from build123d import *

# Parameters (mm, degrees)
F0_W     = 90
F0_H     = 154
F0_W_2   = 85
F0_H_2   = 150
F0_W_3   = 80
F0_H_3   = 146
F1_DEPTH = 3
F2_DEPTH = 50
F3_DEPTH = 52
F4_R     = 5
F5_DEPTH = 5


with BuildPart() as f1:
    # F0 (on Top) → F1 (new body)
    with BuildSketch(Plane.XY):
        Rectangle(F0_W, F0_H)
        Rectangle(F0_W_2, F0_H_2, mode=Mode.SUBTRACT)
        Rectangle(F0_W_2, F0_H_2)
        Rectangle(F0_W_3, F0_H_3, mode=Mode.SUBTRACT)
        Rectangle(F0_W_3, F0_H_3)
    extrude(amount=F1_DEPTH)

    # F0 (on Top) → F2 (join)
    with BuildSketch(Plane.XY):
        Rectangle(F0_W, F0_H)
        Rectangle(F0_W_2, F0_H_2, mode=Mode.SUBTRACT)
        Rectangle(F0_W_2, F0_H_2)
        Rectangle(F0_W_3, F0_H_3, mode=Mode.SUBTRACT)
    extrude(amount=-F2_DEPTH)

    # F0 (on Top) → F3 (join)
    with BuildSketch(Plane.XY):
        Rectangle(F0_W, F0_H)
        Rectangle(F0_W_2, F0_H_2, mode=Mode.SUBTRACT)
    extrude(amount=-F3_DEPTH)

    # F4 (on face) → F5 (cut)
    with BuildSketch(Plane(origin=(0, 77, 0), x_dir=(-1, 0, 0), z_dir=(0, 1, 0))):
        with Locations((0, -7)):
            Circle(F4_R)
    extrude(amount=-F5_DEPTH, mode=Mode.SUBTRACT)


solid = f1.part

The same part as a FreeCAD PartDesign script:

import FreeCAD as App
import Part
import Sketcher
from FreeCAD import Vector


def add_polygon(sketch, points):
    """Adds a closed chain of lines whose ends are joined by coincident constraints."""
    first, n = sketch.GeometryCount, len(points)
    for a, b in zip(points, points[1:] + points[:1]):
        sketch.addGeometry(Part.LineSegment(App.Vector(*a, 0), App.Vector(*b, 0)), False)
    for i in range(n):
        sketch.addConstraint(Sketcher.Constraint("Coincident", first + i, 2, first + (i + 1) % n, 1))

doc = App.newDocument("Part")
body = doc.addObject("PartDesign::Body", "Body")

sketch1 = body.newObject("Sketcher::SketchObject", "Sketch")
sketch1.AttachmentSupport = (doc.getObject("XY_Plane"), [""])
sketch1.MapMode = "FlatFace"
add_polygon(sketch1, [(-45, 77), (-45, -77), (45, -77), (45, 77)])
sketch1.addConstraint([
    Sketcher.Constraint("Vertical", 0),
    Sketcher.Constraint("Horizontal", 1),
    Sketcher.Constraint("Vertical", 2),
    Sketcher.Constraint("Horizontal", 3),
    Sketcher.Constraint("Symmetric", 0, 2, 2, 2, -1, 1),
    Sketcher.Constraint("DistanceX", 1, 1, 1, 2, 90.0),
    Sketcher.Constraint("DistanceY", 0, 2, 0, 1, 154.0),
])
pad1 = body.newObject("PartDesign::Pad", "Pad")
pad1.Profile = sketch1
pad1.Length = 3

sketch2 = body.newObject("Sketcher::SketchObject", "Sketch001")
sketch2.AttachmentSupport = (doc.getObject("XY_Plane"), [""])
sketch2.MapMode = "FlatFace"
add_polygon(sketch2, [(-45, 77), (-45, -77), (45, -77), (45, 77)])
add_polygon(sketch2, [(40, -73), (-40, -73), (-40, 73), (40, 73)])
sketch2.addConstraint([
    Sketcher.Constraint("Vertical", 0),
    Sketcher.Constraint("Horizontal", 1),
    Sketcher.Constraint("Vertical", 2),
    Sketcher.Constraint("Horizontal", 3),
    Sketcher.Constraint("Horizontal", 4),
    Sketcher.Constraint("Vertical", 5),
    Sketcher.Constraint("Horizontal", 6),
    Sketcher.Constraint("Vertical", 7),
    Sketcher.Constraint("Symmetric", 0, 2, 2, 2, -1, 1),
    Sketcher.Constraint("Symmetric", 4, 2, 6, 2, -1, 1),
    Sketcher.Constraint("DistanceX", 1, 1, 1, 2, 90.0),
    Sketcher.Constraint("DistanceX", 4, 2, 4, 1, 80.0),
    Sketcher.Constraint("DistanceY", 0, 2, 0, 1, 154.0),
    Sketcher.Constraint("DistanceY", 5, 1, 5, 2, 146.0),
])
pad2 = body.newObject("PartDesign::Pad", "Pad001")
pad2.Profile = sketch2
pad2.Length = 50
pad2.Reversed = True

sketch3 = body.newObject("Sketcher::SketchObject", "Sketch002")
sketch3.AttachmentSupport = (doc.getObject("XY_Plane"), [""])
sketch3.MapMode = "FlatFace"
add_polygon(sketch3, [(-45, 77), (-45, -77), (45, -77), (45, 77)])
add_polygon(sketch3, [(42, -75), (-42, -75), (-42, 75), (42, 75)])
sketch3.addConstraint([
    Sketcher.Constraint("Vertical", 0),
    Sketcher.Constraint("Horizontal", 1),
    Sketcher.Constraint("Vertical", 2),
    Sketcher.Constraint("Horizontal", 3),
    Sketcher.Constraint("Horizontal", 4),
    Sketcher.Constraint("Vertical", 5),
    Sketcher.Constraint("Horizontal", 6),
    Sketcher.Constraint("Vertical", 7),
    Sketcher.Constraint("Symmetric", 0, 2, 2, 2, -1, 1),
    Sketcher.Constraint("Symmetric", 4, 2, 6, 2, -1, 1),
    Sketcher.Constraint("DistanceX", 1, 1, 1, 2, 90.0),
    Sketcher.Constraint("DistanceX", 4, 2, 4, 1, 85.0),
    Sketcher.Constraint("DistanceY", 0, 2, 0, 1, 154.0),
    Sketcher.Constraint("DistanceY", 5, 1, 5, 2, 150.0),
])
pad3 = body.newObject("PartDesign::Pad", "Pad002")
pad3.Profile = sketch3
pad3.Length = 52
pad3.Reversed = True

sketch4 = body.newObject("Sketcher::SketchObject", "Sketch003")
sketch4.AttachmentSupport = (doc.getObject("XZ_Plane"), [""])
sketch4.MapMode = "FlatFace"
sketch4.AttachmentOffset = App.Placement(Vector(0, 0, -77), App.Rotation())
sketch4.addGeometry(Part.Circle(Vector(0, -7, 0), Vector(0, 0, 1), 5), False)
sketch4.addConstraint([
    Sketcher.Constraint("PointOnObject", 0, 3, -2),
    Sketcher.Constraint("Diameter", 0, 10.0),
    Sketcher.Constraint("DistanceY", 0, 3, -1, 1, 7.0),
])
pocket1 = body.newObject("PartDesign::Pocket", "Pocket")
pocket1.Profile = sketch4
pocket1.Length = 5
pocket1.Reversed = True

doc.recompute()
